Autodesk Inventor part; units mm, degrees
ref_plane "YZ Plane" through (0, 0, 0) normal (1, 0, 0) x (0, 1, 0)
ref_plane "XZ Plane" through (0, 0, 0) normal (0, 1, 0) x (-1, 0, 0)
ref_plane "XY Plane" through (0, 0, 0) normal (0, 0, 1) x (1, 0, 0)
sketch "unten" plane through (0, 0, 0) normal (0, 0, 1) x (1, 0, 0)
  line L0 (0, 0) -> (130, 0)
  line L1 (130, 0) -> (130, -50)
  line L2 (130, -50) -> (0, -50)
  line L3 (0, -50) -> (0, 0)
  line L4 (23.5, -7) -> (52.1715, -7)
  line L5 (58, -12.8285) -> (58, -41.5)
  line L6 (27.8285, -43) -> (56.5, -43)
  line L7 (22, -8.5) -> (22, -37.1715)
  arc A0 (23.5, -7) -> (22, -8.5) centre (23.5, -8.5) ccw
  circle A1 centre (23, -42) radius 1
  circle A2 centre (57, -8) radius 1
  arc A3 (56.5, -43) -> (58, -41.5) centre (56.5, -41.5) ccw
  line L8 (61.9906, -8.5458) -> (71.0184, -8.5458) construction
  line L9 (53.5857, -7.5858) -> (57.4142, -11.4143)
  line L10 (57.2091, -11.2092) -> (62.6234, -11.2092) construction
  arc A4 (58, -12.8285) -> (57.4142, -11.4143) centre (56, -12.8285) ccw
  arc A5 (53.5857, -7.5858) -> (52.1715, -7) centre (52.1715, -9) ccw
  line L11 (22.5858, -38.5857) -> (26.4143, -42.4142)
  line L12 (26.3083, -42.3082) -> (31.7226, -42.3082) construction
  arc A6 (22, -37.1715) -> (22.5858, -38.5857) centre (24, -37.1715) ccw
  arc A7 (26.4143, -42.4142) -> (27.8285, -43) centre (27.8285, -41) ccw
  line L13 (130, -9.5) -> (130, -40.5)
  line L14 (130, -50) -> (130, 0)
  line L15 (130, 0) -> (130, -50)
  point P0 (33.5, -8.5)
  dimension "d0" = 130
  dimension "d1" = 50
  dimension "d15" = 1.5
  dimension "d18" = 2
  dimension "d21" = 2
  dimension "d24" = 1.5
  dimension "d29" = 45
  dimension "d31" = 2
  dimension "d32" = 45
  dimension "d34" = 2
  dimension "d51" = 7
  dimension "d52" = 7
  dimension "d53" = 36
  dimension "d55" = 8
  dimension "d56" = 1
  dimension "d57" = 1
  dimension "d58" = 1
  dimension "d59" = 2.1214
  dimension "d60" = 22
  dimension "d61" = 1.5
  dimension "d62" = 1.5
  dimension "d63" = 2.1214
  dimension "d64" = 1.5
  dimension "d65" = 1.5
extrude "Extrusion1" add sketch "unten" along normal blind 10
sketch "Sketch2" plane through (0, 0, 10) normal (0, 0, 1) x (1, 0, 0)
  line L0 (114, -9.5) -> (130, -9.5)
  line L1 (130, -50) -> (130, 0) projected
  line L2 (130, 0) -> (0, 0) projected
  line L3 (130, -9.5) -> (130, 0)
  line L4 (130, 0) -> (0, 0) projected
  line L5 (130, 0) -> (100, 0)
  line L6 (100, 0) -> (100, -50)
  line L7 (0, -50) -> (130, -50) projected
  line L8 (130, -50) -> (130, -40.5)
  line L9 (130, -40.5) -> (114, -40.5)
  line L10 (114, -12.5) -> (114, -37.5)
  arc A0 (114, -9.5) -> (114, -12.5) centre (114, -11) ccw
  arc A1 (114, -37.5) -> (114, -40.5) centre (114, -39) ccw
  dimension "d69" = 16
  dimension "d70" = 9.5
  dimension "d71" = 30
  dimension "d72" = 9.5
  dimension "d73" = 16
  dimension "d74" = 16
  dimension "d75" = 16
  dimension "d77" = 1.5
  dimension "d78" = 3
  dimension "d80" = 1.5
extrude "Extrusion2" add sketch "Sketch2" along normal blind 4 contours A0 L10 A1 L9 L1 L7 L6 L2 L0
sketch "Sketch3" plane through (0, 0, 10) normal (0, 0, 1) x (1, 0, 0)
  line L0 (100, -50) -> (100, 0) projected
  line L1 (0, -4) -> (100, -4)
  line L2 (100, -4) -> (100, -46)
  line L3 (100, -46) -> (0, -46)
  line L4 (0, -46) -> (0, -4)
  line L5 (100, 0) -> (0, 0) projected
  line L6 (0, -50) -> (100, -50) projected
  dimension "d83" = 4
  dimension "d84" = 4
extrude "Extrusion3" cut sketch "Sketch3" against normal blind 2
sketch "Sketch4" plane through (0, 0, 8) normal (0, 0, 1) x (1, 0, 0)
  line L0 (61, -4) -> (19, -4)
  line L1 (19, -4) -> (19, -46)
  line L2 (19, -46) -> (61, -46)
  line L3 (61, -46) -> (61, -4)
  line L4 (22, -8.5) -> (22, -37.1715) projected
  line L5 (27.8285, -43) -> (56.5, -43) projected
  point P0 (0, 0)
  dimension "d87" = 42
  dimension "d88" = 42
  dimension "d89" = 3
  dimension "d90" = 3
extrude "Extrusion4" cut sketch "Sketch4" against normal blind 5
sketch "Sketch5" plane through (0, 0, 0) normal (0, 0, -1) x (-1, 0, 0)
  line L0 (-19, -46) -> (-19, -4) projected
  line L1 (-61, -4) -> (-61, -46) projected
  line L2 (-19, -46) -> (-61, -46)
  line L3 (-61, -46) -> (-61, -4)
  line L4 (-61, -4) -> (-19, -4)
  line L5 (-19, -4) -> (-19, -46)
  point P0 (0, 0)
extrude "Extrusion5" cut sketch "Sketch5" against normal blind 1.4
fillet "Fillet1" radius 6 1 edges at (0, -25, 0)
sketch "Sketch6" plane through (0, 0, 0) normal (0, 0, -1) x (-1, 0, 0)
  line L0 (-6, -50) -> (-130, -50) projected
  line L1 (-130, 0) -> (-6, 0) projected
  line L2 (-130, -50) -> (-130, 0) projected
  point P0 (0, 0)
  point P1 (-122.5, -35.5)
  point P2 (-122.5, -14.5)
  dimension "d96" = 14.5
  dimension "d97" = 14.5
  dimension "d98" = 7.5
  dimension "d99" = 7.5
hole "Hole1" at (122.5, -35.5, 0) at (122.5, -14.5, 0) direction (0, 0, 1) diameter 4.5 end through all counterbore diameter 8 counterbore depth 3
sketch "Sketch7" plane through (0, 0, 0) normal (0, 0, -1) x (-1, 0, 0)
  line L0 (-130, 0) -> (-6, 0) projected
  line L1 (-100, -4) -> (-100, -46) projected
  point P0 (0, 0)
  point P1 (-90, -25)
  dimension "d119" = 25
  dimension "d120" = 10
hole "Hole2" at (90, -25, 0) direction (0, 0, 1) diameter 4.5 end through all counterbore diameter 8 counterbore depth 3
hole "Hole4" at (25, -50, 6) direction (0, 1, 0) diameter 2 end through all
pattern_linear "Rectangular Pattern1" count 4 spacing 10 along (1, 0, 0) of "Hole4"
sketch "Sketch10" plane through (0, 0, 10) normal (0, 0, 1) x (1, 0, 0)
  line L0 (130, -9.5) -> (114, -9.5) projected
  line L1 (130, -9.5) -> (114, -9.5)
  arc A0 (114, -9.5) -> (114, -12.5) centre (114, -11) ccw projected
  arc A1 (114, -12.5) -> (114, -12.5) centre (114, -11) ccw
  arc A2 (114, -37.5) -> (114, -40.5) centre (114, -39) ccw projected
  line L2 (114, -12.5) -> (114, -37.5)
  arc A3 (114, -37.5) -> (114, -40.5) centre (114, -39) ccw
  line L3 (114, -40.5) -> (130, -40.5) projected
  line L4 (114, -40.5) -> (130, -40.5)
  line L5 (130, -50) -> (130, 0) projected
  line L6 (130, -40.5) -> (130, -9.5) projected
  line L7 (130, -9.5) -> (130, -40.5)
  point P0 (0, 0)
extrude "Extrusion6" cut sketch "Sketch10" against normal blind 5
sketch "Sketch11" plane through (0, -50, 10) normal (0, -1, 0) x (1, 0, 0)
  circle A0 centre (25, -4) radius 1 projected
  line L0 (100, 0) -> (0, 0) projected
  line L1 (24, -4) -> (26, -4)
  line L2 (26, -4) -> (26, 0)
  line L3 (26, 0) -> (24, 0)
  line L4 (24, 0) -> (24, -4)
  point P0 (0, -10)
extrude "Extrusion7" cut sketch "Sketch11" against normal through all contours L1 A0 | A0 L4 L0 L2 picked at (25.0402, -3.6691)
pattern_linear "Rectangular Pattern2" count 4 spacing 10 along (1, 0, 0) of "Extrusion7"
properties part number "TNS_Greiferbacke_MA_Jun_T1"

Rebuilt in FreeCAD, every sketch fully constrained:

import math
import FreeCAD as App
import Part
import Sketcher
Q = App.Units.Quantity


def edges_at(feature, points):
    """Names of the edges that pass closest to the given points."""
    edges = feature.Shape.Edges
    near = lambda p: min(range(len(edges)), key=lambda i: edges[i].distToShape(Part.Vertex(*p))[0])
    return sorted({f"Edge{near(p) + 1}" for p in points})


def add_polygon(sketch, points):
    """Adds a closed chain of lines whose ends are joined by coincident constraints."""
    first, n = sketch.GeometryCount, len(points)
    for a, b in zip(points, points[1:] + points[:1]):
        sketch.addGeometry(Part.LineSegment(App.Vector(*a, 0), App.Vector(*b, 0)), False)
    for i in range(n):
        sketch.addConstraint(Sketcher.Constraint("Coincident", first + i, 2, first + (i + 1) % n, 1))

doc = App.newDocument("Part")
body = doc.addObject("PartDesign::Body", "Body")

sketch1 = body.newObject("Sketcher::SketchObject", "Sketch")
sketch1.AttachmentSupport = (doc.getObject("XY_Plane"), [""])
sketch1.MapMode = "FlatFace"
add_polygon(sketch1, [(130, 0), (0, 0), (0, -50), (130, -50)])
sketch1.addGeometry(Part.Circle(App.Vector(23, -42, 0), App.Vector(0, 0, 1), 1), False)
sketch1.addGeometry(Part.ArcOfCircle(Part.Circle(App.Vector(23.5, -8.5, 0), App.Vector(0, 0, 1), 1.5), math.radians(90), math.radians(180)), False)
sketch1.addGeometry(Part.LineSegment(App.Vector(23.5, -7, 0), App.Vector(52.2, -7, 0)), False)
sketch1.addGeometry(Part.ArcOfCircle(Part.Circle(App.Vector(52.2, -9, 0), App.Vector(0, 0, 1), 2), math.radians(45), math.radians(90)), False)
sketch1.addGeometry(Part.LineSegment(App.Vector(53.6, -7.6, 0), App.Vector(57.4, -11.4, 0)), False)
sketch1.addGeometry(Part.ArcOfCircle(Part.Circle(App.Vector(56, -12.8, 0), App.Vector(0, 0, 1), 2), math.radians(0), math.radians(45)), False)
sketch1.addGeometry(Part.LineSegment(App.Vector(58, -12.8, 0), App.Vector(58, -41.5, 0)), False)
sketch1.addGeometry(Part.ArcOfCircle(Part.Circle(App.Vector(56.5, -41.5, 0), App.Vector(0, 0, 1), 1.5), math.radians(-90), math.radians(0)), False)
sketch1.addGeometry(Part.LineSegment(App.Vector(56.5, -43, 0), App.Vector(27.8, -43, 0)), False)
sketch1.addGeometry(Part.ArcOfCircle(Part.Circle(App.Vector(27.8, -41, 0), App.Vector(0, 0, 1), 2), math.radians(-135), math.radians(-90)), False)
sketch1.addGeometry(Part.LineSegment(App.Vector(26.4, -42.4, 0), App.Vector(22.6, -38.6, 0)), False)
sketch1.addGeometry(Part.ArcOfCircle(Part.Circle(App.Vector(24, -37.2, 0), App.Vector(0, 0, 1), 2), math.radians(180), math.radians(225)), False)
sketch1.addGeometry(Part.LineSegment(App.Vector(22, -37.2, 0), App.Vector(22, -8.5, 0)), False)
sketch1.addGeometry(Part.Circle(App.Vector(57, -8, 0), App.Vector(0, 0, 1), 1), False)
sketch1.addConstraint([
    Sketcher.Constraint("Tangent", 5, 1, 6, 1),
    Sketcher.Constraint("Tangent", 6, 2, 7, 2),
    Sketcher.Constraint("Tangent", 7, 1, 8, 1),
    Sketcher.Constraint("Tangent", 8, 2, 9, 2),
    Sketcher.Constraint("Tangent", 9, 1, 10, 1),
    Sketcher.Constraint("Tangent", 10, 2, 11, 2),
    Sketcher.Constraint("Tangent", 11, 1, 12, 1),
    Sketcher.Constraint("Tangent", 12, 2, 13, 2),
    Sketcher.Constraint("Tangent", 13, 1, 14, 1),
    Sketcher.Constraint("Tangent", 14, 2, 15, 2),
    Sketcher.Constraint("Tangent", 15, 1, 16, 1),
    Sketcher.Constraint("Tangent", 16, 2, 5, 2),
    Sketcher.Constraint("Horizontal", 0),
    Sketcher.Constraint("Vertical", 1),
    Sketcher.Constraint("Horizontal", 2),
    Sketcher.Constraint("Vertical", 3),
    Sketcher.Constraint("Horizontal", 6),
    Sketcher.Constraint("Vertical", 10),
    Sketcher.Constraint("Horizontal", 12),
    Sketcher.Constraint("Vertical", 16),
    Sketcher.Constraint("Coincident", 0, 2, -1, 1),
    Sketcher.Constraint("Equal", 7, 9),
    Sketcher.Constraint("Equal", 5, 11),
    Sketcher.Constraint("Equal", 9, 13),
    Sketcher.Constraint("Equal", 13, 15),
    Sketcher.Constraint("Equal", 4, 17),
    Sketcher.Constraint("Parallel", 8, 14),
    Sketcher.Constraint("Equal", 6, 12),
    Sketcher.Constraint("Equal", 12, 10),
    Sketcher.Constraint("Diameter", 4, 2.0),
    Sketcher.Constraint("Radius", 7, 2.0),
    Sketcher.Constraint("Radius", 5, 1.5),
    Sketcher.Constraint("DistanceX", 0, 2, 0, 1, 130.0),
    Sketcher.Constraint("DistanceY", 1, 2, 1, 1, 50.0),
    Sketcher.Constraint("Angle", 8, Q("-45 deg")),
    Sketcher.Constraint("DistanceY", 17, 3, -1, 1, 8.0),
    Sketcher.Constraint("DistanceY", 5, 1, -1, 1, 7.0),
    Sketcher.Constraint("DistanceX", -1, 1, 15, 1, 22.0),
    Sketcher.Constraint("DistanceY", 4, 3, 13, 3, 1.0),
    Sketcher.Constraint("DistanceX", 4, 3, 15, 3, 1.0),
    Sketcher.Constraint("DistanceX", 9, 3, 17, 3, 1.0),
    Sketcher.Constraint("DistanceY", 1, 2, 4, 3, 8.0),
    Sketcher.Constraint("DistanceX", 6, 1, 6, 2, 28.6715),
])
pad1 = body.newObject("PartDesign::Pad", "Pad")
pad1.Profile = sketch1
pad1.Length = 10

sketch2 = body.newObject("Sketcher::SketchObject", "Sketch001")
sketch2.AttachmentSupport = (doc.getObject("XY_Plane"), [""])
sketch2.MapMode = "FlatFace"
sketch2.AttachmentOffset = App.Placement(App.Vector(0, 0, 10), App.Rotation())
sketch2.addGeometry([
    Part.ArcOfCircle(Part.Circle(App.Vector(114, -11, 0), App.Vector(0, 0, 1), 1.5), math.radians(90), math.radians(270)),
    Part.LineSegment(App.Vector(114, -9.5, 0), App.Vector(130, -9.5, 0)),
    Part.LineSegment(App.Vector(130, -9.5, 0), App.Vector(130, 0, 0)),
    Part.LineSegment(App.Vector(130, 0, 0), App.Vector(100, 0, 0)),
    Part.LineSegment(App.Vector(100, 0, 0), App.Vector(100, -50, 0)),
    Part.LineSegment(App.Vector(100, -50, 0), App.Vector(130, -50, 0)),
    Part.LineSegment(App.Vector(130, -50, 0), App.Vector(130, -40.5, 0)),
    Part.LineSegment(App.Vector(130, -40.5, 0), App.Vector(114, -40.5, 0)),
    Part.ArcOfCircle(Part.Circle(App.Vector(114, -39, 0), App.Vector(0, 0, 1), 1.5), math.radians(90), math.radians(270)),
    Part.LineSegment(App.Vector(114, -37.5, 0), App.Vector(114, -12.5, 0)),
], False)
sketch2.addConstraint([
    Sketcher.Constraint("Tangent", 0, 1, 1, 1),
    Sketcher.Constraint("Coincident", 1, 2, 2, 1),
    Sketcher.Constraint("Coincident", 2, 2, 3, 1),
    Sketcher.Constraint("Coincident", 3, 2, 4, 1),
    Sketcher.Constraint("Coincident", 4, 2, 5, 1),
    Sketcher.Constraint("Coincident", 5, 2, 6, 1),
    Sketcher.Constraint("Coincident", 6, 2, 7, 1),
    Sketcher.Constraint("Tangent", 7, 2, 8, 2),
    Sketcher.Constraint("Coincident", 8, 1, 9, 1),
    Sketcher.Constraint("Coincident", 9, 2, 0, 2),
    Sketcher.Constraint("Horizontal", 1),
    Sketcher.Constraint("Vertical", 2),
    Sketcher.Constraint("Horizontal", 3),
    Sketcher.Constraint("Vertical", 4),
    Sketcher.Constraint("Horizontal", 5),
    Sketcher.Constraint("Vertical", 6),
    Sketcher.Constraint("Horizontal", 7),
    Sketcher.Constraint("Vertical", 9),
    Sketcher.Constraint("Equal", 0, 8),
    Sketcher.Constraint("PointOnObject", 2, 2, -1),
    Sketcher.Constraint("Vertical", 0, 3, 8, 3),
    Sketcher.Constraint("Vertical", 2, 2, 5, 2),
    Sketcher.Constraint("Vertical", 7, 2, 8, 1),
    Sketcher.Constraint("Equal", 2, 6),
    Sketcher.Constraint("Radius", 0, 1.5),
    Sketcher.Constraint("DistanceX", 1, 1, 1, 2, 16.0),
    Sketcher.Constraint("DistanceX", 3, 2, 3, 1, 30.0),
    Sketcher.Constraint("DistanceY", 2, 1, 2, 2, 9.5),
    Sketcher.Constraint("DistanceY", 4, 2, 4, 1, 50.0),
    Sketcher.Constraint("DistanceX", -1, 1, 0, 3, 114.0),
])
pad2 = body.newObject("PartDesign::Pad", "Pad001")
pad2.Profile = sketch2
pad2.Length = 4

sketch3 = body.newObject("Sketcher::SketchObject", "Sketch002")
sketch3.AttachmentSupport = (doc.getObject("XY_Plane"), [""])
sketch3.MapMode = "FlatFace"
sketch3.AttachmentOffset = App.Placement(App.Vector(0, 0, 10), App.Rotation())
add_polygon(sketch3, [(0, -46), (100, -46), (100, -4), (0, -4)])
sketch3.addConstraint([
    Sketcher.Constraint("Horizontal", 0),
    Sketcher.Constraint("Vertical", 1),
    Sketcher.Constraint("Horizontal", 2),
    Sketcher.Constraint("Vertical", 3),
    Sketcher.Constraint("PointOnObject", 2, 2, -2),
    Sketcher.Constraint("DistanceY", 1, 2, -1, 1, 4.0),
    Sketcher.Constraint("DistanceX", 0, 1, 0, 2, 100.0),
    Sketcher.Constraint("DistanceY", 1, 1, 1, 2, 42.0),
])
pocket1 = body.newObject("PartDesign::Pocket", "Pocket")
pocket1.Profile = sketch3
pocket1.Length = 2

sketch4 = body.newObject("Sketcher::SketchObject", "Sketch003")
sketch4.AttachmentSupport = (doc.getObject("XY_Plane"), [""])
sketch4.MapMode = "FlatFace"
sketch4.AttachmentOffset = App.Placement(App.Vector(0, 0, 8), App.Rotation())
add_polygon(sketch4, [(61, -46), (61, -4), (19, -4), (19, -46)])
sketch4.addConstraint([
    Sketcher.Constraint("Vertical", 0),
    Sketcher.Constraint("Horizontal", 1),
    Sketcher.Constraint("Vertical", 2),
    Sketcher.Constraint("Horizontal", 3),
    Sketcher.Constraint("Equal", 3, 0),
    Sketcher.Constraint("DistanceX", 1, 2, 1, 1, 42.0),
    Sketcher.Constraint("DistanceX", -1, 1, 0, 2, 61.0),
    Sketcher.Constraint("DistanceY", 0, 2, -1, 1, 4.0),
])
pocket2 = body.newObject("PartDesign::Pocket", "Pocket001")
pocket2.Profile = sketch4
pocket2.Length = 5

sketch5 = body.newObject("Sketcher::SketchObject", "Sketch004")
sketch5.AttachmentSupport = (doc.getObject("XY_Plane"), [""])
sketch5.MapMode = "FlatFace"
add_polygon(sketch5, [(61, -46), (19, -46), (19, -4), (61, -4)])
sketch5.addConstraint([
    Sketcher.Constraint("Horizontal", 0),
    Sketcher.Constraint("Vertical", 1),
    Sketcher.Constraint("Horizontal", 2),
    Sketcher.Constraint("Vertical", 3),
    Sketcher.Constraint("Equal", 2, 1),
    Sketcher.Constraint("DistanceX", 0, 2, 0, 1, 42.0),
    Sketcher.Constraint("DistanceX", -1, 1, 0, 2, 19.0),
    Sketcher.Constraint("DistanceY", 0, 2, -1, 1, 46.0),
])
pocket3 = body.newObject("PartDesign::Pocket", "Pocket002")
pocket3.Profile = sketch5
pocket3.Length = 1.4
pocket3.Reversed = True
doc.recompute()

fillet = body.newObject("PartDesign::Fillet", "Fillet")
fillet.Base = (pocket3, edges_at(pocket3, [(0, -25, 0)]))
fillet.Radius = 6

sketch6 = body.newObject("Sketcher::SketchObject", "Sketch005")
sketch6.AttachmentSupport = (doc.getObject("XY_Plane"), [""])
sketch6.MapMode = "FlatFace"
sketch6.addGeometry([
    Part.Circle(App.Vector(122.5, -35.5, 0), App.Vector(0, 0, 1), 2.2),
    Part.Circle(App.Vector(122.5, -14.5, 0), App.Vector(0, 0, 1), 2.2),
], False)
sketch6.addConstraint([
    Sketcher.Constraint("Equal", 0, 1),
    Sketcher.Constraint("Vertical", 0, 3, 1, 3),
    Sketcher.Constraint("Diameter", 0, 4.5),
    Sketcher.Constraint("DistanceY", 0, 3, 1, 3, 21.0),
    Sketcher.Constraint("DistanceX", -1, 1, 0, 3, 122.5),
    Sketcher.Constraint("DistanceY", 0, 3, -1, 1, 35.5),
])
doc.recompute()
hole = body.newObject("PartDesign::Hole", "Hole")
hole.Profile = sketch6
hole.ThreadType = "None"
hole.Diameter = 4.5
hole.DepthType = "ThroughAll"
hole.HoleCutType = "Counterbore"
hole.HoleCutDiameter = 8
hole.HoleCutDepth = 3
hole.Reversed = True

sketch7 = body.newObject("Sketcher::SketchObject", "Sketch006")
sketch7.AttachmentSupport = (doc.getObject("XY_Plane"), [""])
sketch7.MapMode = "FlatFace"
sketch7.addGeometry(Part.Circle(App.Vector(90, -25, 0), App.Vector(0, 0, 1), 2.2), False)
sketch7.addConstraint([
    Sketcher.Constraint("Diameter", 0, 4.5),
    Sketcher.Constraint("DistanceX", -1, 1, 0, 3, 90.0),
    Sketcher.Constraint("DistanceY", 0, 3, -1, 1, 25.0),
])
doc.recompute()
hole2 = body.newObject("PartDesign::Hole", "Hole001")
hole2.Profile = sketch7
hole2.ThreadType = "None"
hole2.Diameter = 4.5
hole2.DepthType = "ThroughAll"
hole2.HoleCutType = "Counterbore"
hole2.HoleCutDiameter = 8
hole2.HoleCutDepth = 3
hole2.Reversed = True

sketch8 = body.newObject("Sketcher::SketchObject", "Sketch007")
sketch8.AttachmentSupport = (doc.getObject("XZ_Plane"), [""])
sketch8.MapMode = "FlatFace"
sketch8.AttachmentOffset = App.Placement(App.Vector(0, 0, 50), App.Rotation())
sketch8.addGeometry(Part.Circle(App.Vector(25, 6, 0), App.Vector(0, 0, 1), 1), False)
sketch8.addConstraint([
    Sketcher.Constraint("Diameter", 0, 2.0),
    Sketcher.Constraint("DistanceX", -1, 1, 0, 3, 25.0),
    Sketcher.Constraint("DistanceY", -1, 1, 0, 3, 6.0),
])
doc.recompute()
hole3 = body.newObject("PartDesign::Hole", "Hole002")
hole3.Profile = sketch8
hole3.ThreadType = "None"
hole3.Diameter = 2
hole3.DepthType = "ThroughAll"
doc.recompute()

linearpattern = body.newObject("PartDesign::LinearPattern", "LinearPattern")
linearpattern.Originals = [hole3]
linearpattern.Direction = (doc.getObject("X_Axis"), [""])
linearpattern.Mode = "offset"
linearpattern.Offset = 10
linearpattern.Occurrences = 4
body.Tip = linearpattern

sketch9 = body.newObject("Sketcher::SketchObject", "Sketch008")
sketch9.AttachmentSupport = (doc.getObject("XY_Plane"), [""])
sketch9.MapMode = "FlatFace"
sketch9.AttachmentOffset = App.Placement(App.Vector(0, 0, 10), App.Rotation())
sketch9.addGeometry([
    Part.LineSegment(App.Vector(130, -40.5, 0), App.Vector(130, -9.5, 0)),
    Part.LineSegment(App.Vector(130, -9.5, 0), App.Vector(114, -9.5, 0)),
    Part.ArcOfCircle(Part.Circle(App.Vector(114, -11, 0), App.Vector(0, 0, 1), 1.5), math.radians(90), math.radians(270)),
    Part.LineSegment(App.Vector(114, -12.5, 0), App.Vector(114, -37.5, 0)),
    Part.ArcOfCircle(Part.Circle(App.Vector(114, -39, 0), App.Vector(0, 0, 1), 1.5), math.radians(90), math.radians(270)),
    Part.LineSegment(App.Vector(114, -40.5, 0), App.Vector(130, -40.5, 0)),
], False)
sketch9.addConstraint([
    Sketcher.Constraint("Coincident", 0, 2, 1, 1),
    Sketcher.Constraint("Tangent", 1, 2, 2, 1),
    Sketcher.Constraint("Coincident", 2, 2, 3, 1),
    Sketcher.Constraint("Coincident", 3, 2, 4, 1),
    Sketcher.Constraint("Tangent", 4, 2, 5, 1),
    Sketcher.Constraint("Coincident", 5, 2, 0, 1),
    Sketcher.Constraint("Vertical", 0),
    Sketcher.Constraint("Horizontal", 1),
    Sketcher.Constraint("Vertical", 3),
    Sketcher.Constraint("Horizontal", 5),
    Sketcher.Constraint("Equal", 2, 4),
    Sketcher.Constraint("Vertical", 2, 3, 4, 3),
    Sketcher.Constraint("Vertical", 1, 2, 2, 2),
    Sketcher.Constraint("Radius", 2, 1.5),
    Sketcher.Constraint("DistanceX", 1, 2, 1, 1, 16.0),
    Sketcher.Constraint("DistanceY", 0, 1, 0, 2, 31.0),
    Sketcher.Constraint("DistanceX", -1, 1, 2, 3, 114.0),
    Sketcher.Constraint("DistanceY", 2, 3, -1, 1, 11.0),
])
pocket4 = body.newObject("PartDesign::Pocket", "Pocket003")
pocket4.Profile = sketch9
pocket4.Length = 5

sketch10 = body.newObject("Sketcher::SketchObject", "Sketch009")
sketch10.AttachmentSupport = (doc.getObject("XZ_Plane"), [""])
sketch10.MapMode = "FlatFace"
sketch10.AttachmentOffset = App.Placement(App.Vector(0, 0, 50), App.Rotation())
add_polygon(sketch10, [(24, 6), (26, 6), (26, 10), (24, 10)])
sketch10.addConstraint([
    Sketcher.Constraint("Horizontal", 0),
    Sketcher.Constraint("Vertical", 1),
    Sketcher.Constraint("Horizontal", 2),
    Sketcher.Constraint("Vertical", 3),
    Sketcher.Constraint("DistanceX", 0, 1, 0, 2, 2.0),
    Sketcher.Constraint("DistanceY", 1, 1, 1, 2, 4.0),
    Sketcher.Constraint("DistanceX", -1, 1, 0, 2, 26.0),
    Sketcher.Constraint("DistanceY", -1, 1, 0, 2, 6.0),
])
pocket5 = body.newObject("PartDesign::Pocket", "Pocket004")
pocket5.Profile = sketch10
pocket5.Type = "ThroughAll"
doc.recompute()

linearpattern2 = body.newObject("PartDesign::LinearPattern", "LinearPattern001")
linearpattern2.Originals = [pocket5]
linearpattern2.Direction = (doc.getObject("X_Axis"), [""])
linearpattern2.Mode = "offset"
linearpattern2.Offset = 10
linearpattern2.Occurrences = 4
body.Tip = linearpattern2

doc.recompute()
